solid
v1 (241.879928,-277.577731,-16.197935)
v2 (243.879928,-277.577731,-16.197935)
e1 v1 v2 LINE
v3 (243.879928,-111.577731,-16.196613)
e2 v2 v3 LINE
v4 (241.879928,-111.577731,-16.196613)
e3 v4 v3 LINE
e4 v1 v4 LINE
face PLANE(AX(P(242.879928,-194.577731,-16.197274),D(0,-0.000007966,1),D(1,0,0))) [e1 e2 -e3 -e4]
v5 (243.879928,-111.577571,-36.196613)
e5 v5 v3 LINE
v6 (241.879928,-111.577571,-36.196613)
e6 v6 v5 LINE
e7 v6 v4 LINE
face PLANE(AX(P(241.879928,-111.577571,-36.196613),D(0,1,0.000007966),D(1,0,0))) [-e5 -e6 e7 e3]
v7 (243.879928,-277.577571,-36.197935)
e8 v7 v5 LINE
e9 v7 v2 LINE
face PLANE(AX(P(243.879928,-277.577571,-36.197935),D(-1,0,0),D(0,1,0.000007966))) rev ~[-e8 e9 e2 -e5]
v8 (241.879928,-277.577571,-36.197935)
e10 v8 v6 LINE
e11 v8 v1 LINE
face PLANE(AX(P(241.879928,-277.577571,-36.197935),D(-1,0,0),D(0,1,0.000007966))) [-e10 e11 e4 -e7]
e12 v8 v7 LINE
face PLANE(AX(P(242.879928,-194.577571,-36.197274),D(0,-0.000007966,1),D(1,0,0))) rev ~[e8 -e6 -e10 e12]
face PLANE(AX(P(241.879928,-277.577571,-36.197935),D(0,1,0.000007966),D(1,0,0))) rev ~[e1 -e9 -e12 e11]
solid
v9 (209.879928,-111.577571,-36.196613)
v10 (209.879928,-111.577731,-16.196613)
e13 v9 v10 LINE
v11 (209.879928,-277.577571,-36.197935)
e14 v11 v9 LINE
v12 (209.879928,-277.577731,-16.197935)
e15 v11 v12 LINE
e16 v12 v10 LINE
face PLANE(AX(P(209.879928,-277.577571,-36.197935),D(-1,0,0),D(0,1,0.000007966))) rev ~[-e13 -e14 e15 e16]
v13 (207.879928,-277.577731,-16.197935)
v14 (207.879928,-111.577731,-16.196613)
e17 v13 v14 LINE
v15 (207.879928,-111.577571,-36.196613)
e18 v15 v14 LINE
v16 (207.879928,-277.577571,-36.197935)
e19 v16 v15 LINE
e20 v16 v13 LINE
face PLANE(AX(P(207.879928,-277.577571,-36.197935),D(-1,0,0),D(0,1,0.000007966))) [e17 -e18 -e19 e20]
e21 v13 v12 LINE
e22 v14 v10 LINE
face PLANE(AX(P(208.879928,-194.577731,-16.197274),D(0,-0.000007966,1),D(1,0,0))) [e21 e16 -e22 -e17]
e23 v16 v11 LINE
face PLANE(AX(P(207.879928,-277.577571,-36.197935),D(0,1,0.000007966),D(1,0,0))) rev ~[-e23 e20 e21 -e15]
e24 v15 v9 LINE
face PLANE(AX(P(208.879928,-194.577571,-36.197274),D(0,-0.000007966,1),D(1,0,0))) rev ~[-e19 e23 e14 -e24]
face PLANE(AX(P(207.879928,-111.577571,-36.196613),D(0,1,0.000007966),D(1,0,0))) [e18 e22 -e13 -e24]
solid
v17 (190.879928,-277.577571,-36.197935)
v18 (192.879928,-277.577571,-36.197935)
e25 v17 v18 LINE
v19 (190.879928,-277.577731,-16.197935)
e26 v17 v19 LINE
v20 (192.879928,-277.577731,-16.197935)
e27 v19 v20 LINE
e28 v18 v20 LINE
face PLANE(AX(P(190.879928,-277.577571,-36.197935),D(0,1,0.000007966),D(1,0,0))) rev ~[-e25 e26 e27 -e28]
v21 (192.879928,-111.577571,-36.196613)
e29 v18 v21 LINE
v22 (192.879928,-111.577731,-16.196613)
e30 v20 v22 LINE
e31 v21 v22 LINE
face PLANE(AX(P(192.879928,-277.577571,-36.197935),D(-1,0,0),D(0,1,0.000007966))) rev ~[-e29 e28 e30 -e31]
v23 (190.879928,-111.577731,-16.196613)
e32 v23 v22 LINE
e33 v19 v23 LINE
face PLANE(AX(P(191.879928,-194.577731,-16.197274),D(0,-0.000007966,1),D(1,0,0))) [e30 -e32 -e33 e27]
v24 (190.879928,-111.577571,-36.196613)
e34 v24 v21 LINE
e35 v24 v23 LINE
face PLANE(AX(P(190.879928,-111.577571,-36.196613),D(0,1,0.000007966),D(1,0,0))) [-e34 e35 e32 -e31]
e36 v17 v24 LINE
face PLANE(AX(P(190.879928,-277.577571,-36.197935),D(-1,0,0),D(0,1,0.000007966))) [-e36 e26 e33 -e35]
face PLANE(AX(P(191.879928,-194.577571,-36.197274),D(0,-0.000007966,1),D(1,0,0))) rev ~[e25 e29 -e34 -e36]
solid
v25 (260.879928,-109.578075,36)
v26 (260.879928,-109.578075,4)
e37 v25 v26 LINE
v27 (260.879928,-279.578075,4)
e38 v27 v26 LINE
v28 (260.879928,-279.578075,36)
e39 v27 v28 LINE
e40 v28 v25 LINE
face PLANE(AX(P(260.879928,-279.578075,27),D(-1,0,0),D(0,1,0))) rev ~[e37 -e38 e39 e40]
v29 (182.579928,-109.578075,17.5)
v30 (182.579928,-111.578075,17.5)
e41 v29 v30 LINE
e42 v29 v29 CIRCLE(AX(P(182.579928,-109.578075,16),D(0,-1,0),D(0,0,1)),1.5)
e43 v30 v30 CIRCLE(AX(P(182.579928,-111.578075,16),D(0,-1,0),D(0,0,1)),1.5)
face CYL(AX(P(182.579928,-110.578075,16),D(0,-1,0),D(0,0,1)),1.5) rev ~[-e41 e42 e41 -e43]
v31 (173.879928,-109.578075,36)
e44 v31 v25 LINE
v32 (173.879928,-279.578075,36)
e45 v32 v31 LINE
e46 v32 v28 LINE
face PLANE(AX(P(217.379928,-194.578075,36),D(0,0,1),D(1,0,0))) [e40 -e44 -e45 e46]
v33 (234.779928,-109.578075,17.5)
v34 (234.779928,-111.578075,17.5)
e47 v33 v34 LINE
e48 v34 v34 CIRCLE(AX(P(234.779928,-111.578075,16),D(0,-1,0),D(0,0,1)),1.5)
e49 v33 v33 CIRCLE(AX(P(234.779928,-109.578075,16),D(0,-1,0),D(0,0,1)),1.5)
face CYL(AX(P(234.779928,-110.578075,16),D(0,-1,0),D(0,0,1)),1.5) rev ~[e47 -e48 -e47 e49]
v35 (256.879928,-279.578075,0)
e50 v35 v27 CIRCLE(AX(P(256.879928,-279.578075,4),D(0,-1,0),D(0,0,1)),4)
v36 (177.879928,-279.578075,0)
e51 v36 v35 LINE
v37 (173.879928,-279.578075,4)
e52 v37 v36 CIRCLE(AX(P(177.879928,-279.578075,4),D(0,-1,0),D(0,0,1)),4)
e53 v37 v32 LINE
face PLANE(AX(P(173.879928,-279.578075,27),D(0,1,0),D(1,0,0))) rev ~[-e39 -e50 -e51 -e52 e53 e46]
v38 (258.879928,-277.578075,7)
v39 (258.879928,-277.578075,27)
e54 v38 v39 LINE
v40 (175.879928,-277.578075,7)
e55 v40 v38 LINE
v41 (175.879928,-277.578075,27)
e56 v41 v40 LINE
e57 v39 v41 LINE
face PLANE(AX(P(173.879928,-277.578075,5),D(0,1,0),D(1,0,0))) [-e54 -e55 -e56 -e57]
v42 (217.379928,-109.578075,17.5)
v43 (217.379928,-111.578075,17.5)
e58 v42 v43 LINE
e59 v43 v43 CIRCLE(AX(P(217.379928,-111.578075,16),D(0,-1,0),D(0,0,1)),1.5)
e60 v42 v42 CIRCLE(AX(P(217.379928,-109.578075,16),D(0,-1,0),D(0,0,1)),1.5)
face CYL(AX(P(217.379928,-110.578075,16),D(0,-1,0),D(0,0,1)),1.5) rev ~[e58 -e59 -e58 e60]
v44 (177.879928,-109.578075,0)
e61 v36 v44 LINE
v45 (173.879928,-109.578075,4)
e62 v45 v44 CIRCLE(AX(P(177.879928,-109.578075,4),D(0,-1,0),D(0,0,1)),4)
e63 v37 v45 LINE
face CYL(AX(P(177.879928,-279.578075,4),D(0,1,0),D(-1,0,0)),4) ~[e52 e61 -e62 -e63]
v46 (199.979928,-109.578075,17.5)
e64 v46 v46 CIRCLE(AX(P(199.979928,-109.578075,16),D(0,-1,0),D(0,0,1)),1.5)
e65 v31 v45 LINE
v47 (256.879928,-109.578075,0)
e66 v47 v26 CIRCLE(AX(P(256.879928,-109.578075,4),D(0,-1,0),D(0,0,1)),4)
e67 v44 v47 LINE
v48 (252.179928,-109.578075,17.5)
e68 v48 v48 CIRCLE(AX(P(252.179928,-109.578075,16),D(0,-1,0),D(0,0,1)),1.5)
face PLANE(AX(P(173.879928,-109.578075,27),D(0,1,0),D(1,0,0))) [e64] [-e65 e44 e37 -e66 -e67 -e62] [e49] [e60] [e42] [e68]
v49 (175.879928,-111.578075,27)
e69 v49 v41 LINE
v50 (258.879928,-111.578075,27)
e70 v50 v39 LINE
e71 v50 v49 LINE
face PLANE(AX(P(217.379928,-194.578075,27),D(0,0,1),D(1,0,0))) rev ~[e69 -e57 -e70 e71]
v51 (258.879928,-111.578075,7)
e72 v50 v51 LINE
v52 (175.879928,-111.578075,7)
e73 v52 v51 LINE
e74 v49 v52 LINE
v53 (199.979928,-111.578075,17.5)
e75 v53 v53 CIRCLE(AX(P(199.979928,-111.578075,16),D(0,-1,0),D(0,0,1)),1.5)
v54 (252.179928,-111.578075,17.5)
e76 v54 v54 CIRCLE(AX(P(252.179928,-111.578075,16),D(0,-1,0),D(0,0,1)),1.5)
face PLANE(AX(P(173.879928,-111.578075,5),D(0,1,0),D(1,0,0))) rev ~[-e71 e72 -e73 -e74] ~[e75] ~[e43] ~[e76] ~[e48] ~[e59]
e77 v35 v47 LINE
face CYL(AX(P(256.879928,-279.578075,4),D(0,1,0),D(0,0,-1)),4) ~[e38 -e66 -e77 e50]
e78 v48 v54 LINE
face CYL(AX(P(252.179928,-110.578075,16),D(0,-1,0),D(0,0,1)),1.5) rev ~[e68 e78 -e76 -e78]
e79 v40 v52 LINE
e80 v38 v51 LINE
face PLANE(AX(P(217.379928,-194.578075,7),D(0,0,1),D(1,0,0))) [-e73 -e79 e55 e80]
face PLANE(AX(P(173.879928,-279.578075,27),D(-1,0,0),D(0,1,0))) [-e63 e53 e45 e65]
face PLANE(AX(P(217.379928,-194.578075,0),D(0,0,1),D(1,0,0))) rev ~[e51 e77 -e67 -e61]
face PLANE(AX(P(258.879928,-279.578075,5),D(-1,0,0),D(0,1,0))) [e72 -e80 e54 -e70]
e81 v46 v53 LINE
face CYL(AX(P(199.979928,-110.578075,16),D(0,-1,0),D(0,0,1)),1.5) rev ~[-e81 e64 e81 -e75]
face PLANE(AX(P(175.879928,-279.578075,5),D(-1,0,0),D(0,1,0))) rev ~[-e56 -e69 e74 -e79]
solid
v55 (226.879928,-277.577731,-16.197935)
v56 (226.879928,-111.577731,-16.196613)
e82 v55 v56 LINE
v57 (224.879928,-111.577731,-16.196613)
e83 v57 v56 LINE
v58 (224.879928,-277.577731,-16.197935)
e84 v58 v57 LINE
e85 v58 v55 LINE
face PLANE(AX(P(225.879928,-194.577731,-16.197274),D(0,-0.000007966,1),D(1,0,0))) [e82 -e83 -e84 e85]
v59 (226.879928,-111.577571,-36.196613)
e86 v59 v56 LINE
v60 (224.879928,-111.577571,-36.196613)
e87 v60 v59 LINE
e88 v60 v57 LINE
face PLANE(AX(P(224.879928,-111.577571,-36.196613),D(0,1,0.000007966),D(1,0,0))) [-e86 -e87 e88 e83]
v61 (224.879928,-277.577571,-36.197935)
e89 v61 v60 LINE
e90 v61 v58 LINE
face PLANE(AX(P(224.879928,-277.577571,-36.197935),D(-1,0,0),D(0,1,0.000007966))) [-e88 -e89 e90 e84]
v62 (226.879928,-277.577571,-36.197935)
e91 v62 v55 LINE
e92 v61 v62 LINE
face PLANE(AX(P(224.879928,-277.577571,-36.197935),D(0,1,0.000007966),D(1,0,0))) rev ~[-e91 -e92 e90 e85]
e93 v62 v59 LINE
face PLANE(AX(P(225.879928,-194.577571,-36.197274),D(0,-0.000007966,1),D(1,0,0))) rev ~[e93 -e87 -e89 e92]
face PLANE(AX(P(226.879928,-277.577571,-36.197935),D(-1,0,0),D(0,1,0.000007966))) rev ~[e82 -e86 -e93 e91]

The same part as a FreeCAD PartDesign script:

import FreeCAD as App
import Part
import Sketcher
Q = App.Units.Quantity


def edges_at(feature, points):
    """Names of the edges that pass closest to the given points."""
    edges = feature.Shape.Edges
    near = lambda p: min(range(len(edges)), key=lambda i: edges[i].distToShape(Part.Vertex(*p))[0])
    return sorted({f"Edge{near(p) + 1}" for p in points})


def faces_at(feature, points):
    """Names of the faces that lie closest to the given points."""
    faces = feature.Shape.Faces
    near = lambda p: min(range(len(faces)), key=lambda i: faces[i].distToShape(Part.Vertex(*p))[0])
    return sorted({f"Face{near(p) + 1}" for p in points})

doc = App.newDocument("Part")
body = doc.addObject("PartDesign::Body", "Body")

sketch1 = doc.addObject("Sketcher::SketchObject", "Sketch")
body.addObject(sketch1)
sketch1.AttachmentSupport = (doc.XY_Plane, [""])
sketch1.MapMode = "FlatFace"
sketch1.AttachmentOffset = App.Placement(App.Vector(0, 0, 5), App.Rotation())
sketch1.addGeometry(Part.LineSegment(App.Vector(173.879928, -109.578075, 0), App.Vector(173.879928, -279.578075, 0)), False)
sketch1.addGeometry(Part.LineSegment(App.Vector(173.879928, -279.578075, 0), App.Vector(260.879928, -279.578075, 0)), False)
sketch1.addGeometry(Part.LineSegment(App.Vector(260.879928, -279.578075, 0), App.Vector(260.879928, -109.578075, 0)), False)
sketch1.addGeometry(Part.LineSegment(App.Vector(260.879928, -109.578075, 0), App.Vector(173.879928, -109.578075, 0)), False)
sketch1.addConstraint(Sketcher.Constraint("Coincident", 0, 2, 1, 1))
sketch1.addConstraint(Sketcher.Constraint("Coincident", 1, 2, 2, 1))
sketch1.addConstraint(Sketcher.Constraint("Coincident", 2, 2, 3, 1))
sketch1.addConstraint(Sketcher.Constraint("Coincident", 3, 2, 0, 1))
sketch1.addConstraint(Sketcher.Constraint("Vertical", 0))
sketch1.addConstraint(Sketcher.Constraint("Horizontal", 1))
sketch1.addConstraint(Sketcher.Constraint("Vertical", 2))
sketch1.addConstraint(Sketcher.Constraint("Horizontal", 3))
sketch1.addConstraint(Sketcher.Constraint("DistanceX", 1, 1, 1, 2, Q("87 mm")))
sketch1.addConstraint(Sketcher.Constraint("DistanceY", 0, 2, 0, 1, Q("170 mm")))
sketch1.addConstraint(Sketcher.Constraint("DistanceX", -1, 1, 0, 2, Q("173.879928 mm")))
sketch1.addConstraint(Sketcher.Constraint("DistanceY", 0, 2, -1, 1, Q("279.578075 mm")))
pad1 = doc.addObject("PartDesign::Pad", "Pad")
body.addObject(pad1)
pad1.Profile = sketch1
pad1.Length = 22
doc.recompute()

thickness = doc.addObject("PartDesign::Thickness", "Thickness")
body.addObject(thickness)
thickness.Base = (pad1, faces_at(pad1, [(217.38, -194.578, 27)]))
thickness.Value = 2
thickness.Reversed = True
thickness.Join = "Intersection"

sketch2 = doc.addObject("Sketcher::SketchObject", "Sketch001")
body.addObject(sketch2)
sketch2.AttachmentSupport = (doc.YZ_Plane, [""])
sketch2.MapMode = "FlatFace"
sketch2.AttachmentOffset = App.Placement(App.Vector(0, 0, 182.579928), App.Rotation())
sketch2.addGeometry(Part.LineSegment(App.Vector(-111.578075, 16, 0), App.Vector(-109.578075, 16, 0)), False)
sketch2.addGeometry(Part.LineSegment(App.Vector(-109.578075, 16, 0), App.Vector(-109.578075, 17.5, 0)), False)
sketch2.addGeometry(Part.LineSegment(App.Vector(-109.578075, 17.5, 0), App.Vector(-111.578075, 17.5, 0)), False)
sketch2.addGeometry(Part.LineSegment(App.Vector(-111.578075, 17.5, 0), App.Vector(-111.578075, 16, 0)), False)
sketch2.addGeometry(Part.LineSegment(App.Vector(-109.578075, 16, 0), App.Vector(-111.578075, 16, 0)), True)
sketch2.addConstraint(Sketcher.Constraint("Coincident", 0, 2, 1, 1))
sketch2.addConstraint(Sketcher.Constraint("Coincident", 1, 2, 2, 1))
sketch2.addConstraint(Sketcher.Constraint("Coincident", 2, 2, 3, 1))
sketch2.addConstraint(Sketcher.Constraint("Coincident", 3, 2, 0, 1))
sketch2.addConstraint(Sketcher.Constraint("Horizontal", 0))
sketch2.addConstraint(Sketcher.Constraint("Vertical", 1))
sketch2.addConstraint(Sketcher.Constraint("Horizontal", 2))
sketch2.addConstraint(Sketcher.Constraint("Vertical", 3))
sketch2.addConstraint(Sketcher.Constraint("Horizontal", 4))
sketch2.addConstraint(Sketcher.Constraint("Coincident", 4, 1, 0, 2))
sketch2.addConstraint(Sketcher.Constraint("Vertical", 2, 2, 4, 2))
sketch2.addConstraint(Sketcher.Constraint("DistanceX", 0, 1, 0, 2, Q("2 mm")))
sketch2.addConstraint(Sketcher.Constraint("DistanceY", 1, 1, 1, 2, Q("1.5 mm")))
sketch2.addConstraint(Sketcher.Constraint("DistanceY", -1, 1, 0, 2, Q("16 mm")))
sketch2.addConstraint(Sketcher.Constraint("DistanceX", 0, 2, -1, 1, Q("109.578075 mm")))
groove = doc.addObject("PartDesign::Groove", "Groove")
body.addObject(groove)
groove.Profile = sketch2
groove.ReferenceAxis = (sketch2, ["Axis0"])
groove.Angle = 360
doc.recompute()

linearpattern = doc.addObject("PartDesign::LinearPattern", "LinearPattern")
body.addObject(linearpattern)
linearpattern.Originals = [groove]
linearpattern.Direction = (doc.X_Axis, [""])
linearpattern.Mode = "offset"
linearpattern.Offset = 17.4
linearpattern.Occurrences = 2
body.Tip = linearpattern
doc.recompute()

linearpattern2 = doc.addObject("PartDesign::LinearPattern", "LinearPattern001")
body.addObject(linearpattern2)
linearpattern2.Originals = [groove]
linearpattern2.Direction = (doc.X_Axis, [""])
linearpattern2.Mode = "offset"
linearpattern2.Offset = 34.8
linearpattern2.Occurrences = 2
body.Tip = linearpattern2
doc.recompute()

linearpattern3 = doc.addObject("PartDesign::LinearPattern", "LinearPattern002")
body.addObject(linearpattern3)
linearpattern3.Originals = [groove]
linearpattern3.Direction = (doc.X_Axis, [""])
linearpattern3.Mode = "offset"
linearpattern3.Offset = 52.2
linearpattern3.Occurrences = 2
body.Tip = linearpattern3
doc.recompute()

linearpattern4 = doc.addObject("PartDesign::LinearPattern", "LinearPattern003")
body.addObject(linearpattern4)
linearpattern4.Originals = [groove]
linearpattern4.Direction = (doc.X_Axis, [""])
linearpattern4.Mode = "offset"
linearpattern4.Offset = 69.6
linearpattern4.Occurrences = 2
body.Tip = linearpattern4

sketch3 = doc.addObject("Sketcher::SketchObject", "Sketch002")
body.addObject(sketch3)
sketch3.AttachmentSupport = (doc.XY_Plane, [""])
sketch3.MapMode = "FlatFace"
sketch3.addGeometry(Part.LineSegment(App.Vector(173.879928, -109.578075, 0), App.Vector(173.879928, -279.578075, 0)), False)
sketch3.addGeometry(Part.LineSegment(App.Vector(173.879928, -279.578075, 0), App.Vector(260.879928, -279.578075, 0)), False)
sketch3.addGeometry(Part.LineSegment(App.Vector(260.879928, -279.578075, 0), App.Vector(260.879928, -109.578075, 0)), False)
sketch3.addGeometry(Part.LineSegment(App.Vector(260.879928, -109.578075, 0), App.Vector(173.879928, -109.578075, 0)), False)
sketch3.addConstraint(Sketcher.Constraint("Coincident", 0, 2, 1, 1))
sketch3.addConstraint(Sketcher.Constraint("Coincident", 1, 2, 2, 1))
sketch3.addConstraint(Sketcher.Constraint("Coincident", 2, 2, 3, 1))
sketch3.addConstraint(Sketcher.Constraint("Coincident", 3, 2, 0, 1))
sketch3.addConstraint(Sketcher.Constraint("Vertical", 0))
sketch3.addConstraint(Sketcher.Constraint("Horizontal", 1))
sketch3.addConstraint(Sketcher.Constraint("Vertical", 2))
sketch3.addConstraint(Sketcher.Constraint("Horizontal", 3))
sketch3.addConstraint(Sketcher.Constraint("DistanceX", 1, 1, 1, 2, Q("87 mm")))
sketch3.addConstraint(Sketcher.Constraint("DistanceY", 0, 2, 0, 1, Q("170 mm")))
sketch3.addConstraint(Sketcher.Constraint("DistanceX", -1, 1, 0, 2, Q("173.879928 mm")))
sketch3.addConstraint(Sketcher.Constraint("DistanceY", 0, 2, -1, 1, Q("279.578075 mm")))
pad2 = doc.addObject("PartDesign::Pad", "Pad001")
body.addObject(pad2)
pad2.Profile = sketch3
pad2.Length = 5
doc.recompute()

fillet = doc.addObject("PartDesign::Fillet", "Fillet")
body.addObject(fillet)
fillet.Base = (pad2, edges_at(pad2, [(173.88, -194.578, 0), (260.88, -194.578, 0)]))
fillet.Radius = 4

sketch4 = doc.addObject("Sketcher::SketchObject", "Sketch003")
body.addObject(sketch4)
sketch4.AttachmentSupport = (doc.XY_Plane, [""])
sketch4.MapMode = "FlatFace"
sketch4.AttachmentOffset = App.Placement(App.Vector(0, 0, 27), App.Rotation())
sketch4.addGeometry(Part.LineSegment(App.Vector(173.879928, -109.578075, 0), App.Vector(173.879928, -279.578075, 0)), False)
sketch4.addGeometry(Part.LineSegment(App.Vector(173.879928, -279.578075, 0), App.Vector(260.879928, -279.578075, 0)), False)
sketch4.addGeometry(Part.LineSegment(App.Vector(260.879928, -279.578075, 0), App.Vector(260.879928, -109.578075, 0)), False)
sketch4.addGeometry(Part.LineSegment(App.Vector(260.879928, -109.578075, 0), App.Vector(173.879928, -109.578075, 0)), False)
sketch4.addConstraint(Sketcher.Constraint("Coincident", 0, 2, 1, 1))
sketch4.addConstraint(Sketcher.Constraint("Coincident", 1, 2, 2, 1))
sketch4.addConstraint(Sketcher.Constraint("Coincident", 2, 2, 3, 1))
sketch4.addConstraint(Sketcher.Constraint("Coincident", 3, 2, 0, 1))
sketch4.addConstraint(Sketcher.Constraint("Vertical", 0))
sketch4.addConstraint(Sketcher.Constraint("Horizontal", 1))
sketch4.addConstraint(Sketcher.Constraint("Vertical", 2))
sketch4.addConstraint(Sketcher.Constraint("Horizontal", 3))
sketch4.addConstraint(Sketcher.Constraint("DistanceX", 1, 1, 1, 2, Q("87 mm")))
sketch4.addConstraint(Sketcher.Constraint("DistanceY", 0, 2, 0, 1, Q("170 mm")))
sketch4.addConstraint(Sketcher.Constraint("DistanceX", -1, 1, 0, 2, Q("173.879928 mm")))
sketch4.addConstraint(Sketcher.Constraint("DistanceY", 0, 2, -1, 1, Q("279.578075 mm")))
pad3 = doc.addObject("PartDesign::Pad", "Pad002")
body.addObject(pad3)
pad3.Profile = sketch4
pad3.Length = 9
body2 = doc.addObject("PartDesign::Body", "Body001")

sketch5 = doc.addObject("Sketcher::SketchObject", "Sketch004")
body2.addObject(sketch5)
sketch5.AttachmentSupport = (doc.getObject("XY_Plane001"), [""])
sketch5.MapMode = "FlatFace"
sketch5.AttachmentOffset = App.Placement(App.Vector(0, 0, -36.195724), App.Rotation())
sketch5.addGeometry(Part.LineSegment(App.Vector(190.879928, -111.577571, 0), App.Vector(190.879928, -277.577571, 0)), False)
sketch5.addGeometry(Part.LineSegment(App.Vector(190.879928, -277.577571, 0), App.Vector(192.879928, -277.577571, 0)), False)
sketch5.addGeometry(Part.LineSegment(App.Vector(192.879928, -277.577571, 0), App.Vector(192.879928, -111.577571, 0)), False)
sketch5.addGeometry(Part.LineSegment(App.Vector(192.879928, -111.577571, 0), App.Vector(190.879928, -111.577571, 0)), False)
sketch5.addConstraint(Sketcher.Constraint("Coincident", 0, 2, 1, 1))
sketch5.addConstraint(Sketcher.Constraint("Coincident", 1, 2, 2, 1))
sketch5.addConstraint(Sketcher.Constraint("Coincident", 2, 2, 3, 1))
sketch5.addConstraint(Sketcher.Constraint("Coincident", 3, 2, 0, 1))
sketch5.addConstraint(Sketcher.Constraint("Vertical", 0))
sketch5.addConstraint(Sketcher.Constraint("Horizontal", 1))
sketch5.addConstraint(Sketcher.Constraint("Vertical", 2))
sketch5.addConstraint(Sketcher.Constraint("Horizontal", 3))
sketch5.addConstraint(Sketcher.Constraint("DistanceX", 1, 1, 1, 2, Q("2 mm")))
sketch5.addConstraint(Sketcher.Constraint("DistanceY", 0, 2, 0, 1, Q("166 mm")))
sketch5.addConstraint(Sketcher.Constraint("DistanceY", 0, 2, -1, 1, Q("277.577571 mm")))
sketch5.addConstraint(Sketcher.Constraint("DistanceX", -1, 1, 0, 2, Q("190.879928 mm")))
pad4 = doc.addObject("PartDesign::Pad", "Pad003")
body2.addObject(pad4)
pad4.Profile = sketch5
pad4.Length = 20
body3 = doc.addObject("PartDesign::Body", "Body002")

sketch6 = doc.addObject("Sketcher::SketchObject", "Sketch005")
body3.addObject(sketch6)
sketch6.AttachmentSupport = (doc.getObject("XY_Plane002"), [""])
sketch6.MapMode = "FlatFace"
sketch6.AttachmentOffset = App.Placement(App.Vector(0, 0, -36.195724), App.Rotation())
sketch6.addGeometry(Part.LineSegment(App.Vector(207.879928, -111.577571, 0), App.Vector(207.879928, -277.577571, 0)), False)
sketch6.addGeometry(Part.LineSegment(App.Vector(207.879928, -277.577571, 0), App.Vector(209.879928, -277.577571, 0)), False)
sketch6.addGeometry(Part.LineSegment(App.Vector(209.879928, -277.577571, 0), App.Vector(209.879928, -111.577571, 0)), False)
sketch6.addGeometry(Part.LineSegment(App.Vector(209.879928, -111.577571, 0), App.Vector(207.879928, -111.577571, 0)), False)
sketch6.addConstraint(Sketcher.Constraint("Coincident", 0, 2, 1, 1))
sketch6.addConstraint(Sketcher.Constraint("Coincident", 1, 2, 2, 1))
sketch6.addConstraint(Sketcher.Constraint("Coincident", 2, 2, 3, 1))
sketch6.addConstraint(Sketcher.Constraint("Coincident", 3, 2, 0, 1))
sketch6.addConstraint(Sketcher.Constraint("Vertical", 0))
sketch6.addConstraint(Sketcher.Constraint("Horizontal", 1))
sketch6.addConstraint(Sketcher.Constraint("Vertical", 2))
sketch6.addConstraint(Sketcher.Constraint("Horizontal", 3))
sketch6.addConstraint(Sketcher.Constraint("DistanceX", 1, 1, 1, 2, Q("2 mm")))
sketch6.addConstraint(Sketcher.Constraint("DistanceY", 0, 2, 0, 1, Q("166 mm")))
sketch6.addConstraint(Sketcher.Constraint("DistanceY", 0, 2, -1, 1, Q("277.577571 mm")))
sketch6.addConstraint(Sketcher.Constraint("DistanceX", -1, 1, 0, 2, Q("207.879928 mm")))
pad5 = doc.addObject("PartDesign::Pad", "Pad004")
body3.addObject(pad5)
pad5.Profile = sketch6
pad5.Length = 20
body4 = doc.addObject("PartDesign::Body", "Body003")

sketch7 = doc.addObject("Sketcher::SketchObject", "Sketch006")
body4.addObject(sketch7)
sketch7.AttachmentSupport = (doc.getObject("XY_Plane003"), [""])
sketch7.MapMode = "FlatFace"
sketch7.AttachmentOffset = App.Placement(App.Vector(0, 0, -36.195724), App.Rotation())
sketch7.addGeometry(Part.LineSegment(App.Vector(224.879928, -111.577571, 0), App.Vector(224.879928, -277.577571, 0)), False)
sketch7.addGeometry(Part.LineSegment(App.Vector(224.879928, -277.577571, 0), App.Vector(226.879928, -277.577571, 0)), False)
sketch7.addGeometry(Part.LineSegment(App.Vector(226.879928, -277.577571, 0), App.Vector(226.879928, -111.577571, 0)), False)
sketch7.addGeometry(Part.LineSegment(App.Vector(226.879928, -111.577571, 0), App.Vector(224.879928, -111.577571, 0)), False)
sketch7.addConstraint(Sketcher.Constraint("Coincident", 0, 2, 1, 1))
sketch7.addConstraint(Sketcher.Constraint("Coincident", 1, 2, 2, 1))
sketch7.addConstraint(Sketcher.Constraint("Coincident", 2, 2, 3, 1))
sketch7.addConstraint(Sketcher.Constraint("Coincident", 3, 2, 0, 1))
sketch7.addConstraint(Sketcher.Constraint("Vertical", 0))
sketch7.addConstraint(Sketcher.Constraint("Horizontal", 1))
sketch7.addConstraint(Sketcher.Constraint("Vertical", 2))
sketch7.addConstraint(Sketcher.Constraint("Horizontal", 3))
sketch7.addConstraint(Sketcher.Constraint("DistanceX", 1, 1, 1, 2, Q("2 mm")))
sketch7.addConstraint(Sketcher.Constraint("DistanceY", 0, 2, 0, 1, Q("166 mm")))
sketch7.addConstraint(Sketcher.Constraint("DistanceY", 0, 2, -1, 1, Q("277.577571 mm")))
sketch7.addConstraint(Sketcher.Constraint("DistanceX", -1, 1, 0, 2, Q("224.879928 mm")))
pad6 = doc.addObject("PartDesign::Pad", "Pad005")
body4.addObject(pad6)
pad6.Profile = sketch7
pad6.Length = 20
body5 = doc.addObject("PartDesign::Body", "Body004")

sketch8 = doc.addObject("Sketcher::SketchObject", "Sketch007")
body5.addObject(sketch8)
sketch8.AttachmentSupport = (doc.getObject("XY_Plane004"), [""])
sketch8.MapMode = "FlatFace"
sketch8.AttachmentOffset = App.Placement(App.Vector(0, 0, -36.195724), App.Rotation())
sketch8.addGeometry(Part.LineSegment(App.Vector(241.879928, -111.577571, 0), App.Vector(241.879928, -277.577571, 0)), False)
sketch8.addGeometry(Part.LineSegment(App.Vector(241.879928, -277.577571, 0), App.Vector(243.879928, -277.577571, 0)), False)
sketch8.addGeometry(Part.LineSegment(App.Vector(243.879928, -277.577571, 0), App.Vector(243.879928, -111.577571, 0)), False)
sketch8.addGeometry(Part.LineSegment(App.Vector(243.879928, -111.577571, 0), App.Vector(241.879928, -111.577571, 0)), False)
sketch8.addConstraint(Sketcher.Constraint("Coincident", 0, 2, 1, 1))
sketch8.addConstraint(Sketcher.Constraint("Coincident", 1, 2, 2, 1))
sketch8.addConstraint(Sketcher.Constraint("Coincident", 2, 2, 3, 1))
sketch8.addConstraint(Sketcher.Constraint("Coincident", 3, 2, 0, 1))
sketch8.addConstraint(Sketcher.Constraint("Vertical", 0))
sketch8.addConstraint(Sketcher.Constraint("Horizontal", 1))
sketch8.addConstraint(Sketcher.Constraint("Vertical", 2))
sketch8.addConstraint(Sketcher.Constraint("Horizontal", 3))
sketch8.addConstraint(Sketcher.Constraint("DistanceX", 1, 1, 1, 2, Q("2 mm")))
sketch8.addConstraint(Sketcher.Constraint("DistanceY", 0, 2, 0, 1, Q("166 mm")))
sketch8.addConstraint(Sketcher.Constraint("DistanceY", 0, 2, -1, 1, Q("277.577571 mm")))
sketch8.addConstraint(Sketcher.Constraint("DistanceX", -1, 1, 0, 2, Q("241.879928 mm")))
pad7 = doc.addObject("PartDesign::Pad", "Pad006")
body5.addObject(pad7)
pad7.Profile = sketch8
pad7.Length = 20

doc.recompute()
